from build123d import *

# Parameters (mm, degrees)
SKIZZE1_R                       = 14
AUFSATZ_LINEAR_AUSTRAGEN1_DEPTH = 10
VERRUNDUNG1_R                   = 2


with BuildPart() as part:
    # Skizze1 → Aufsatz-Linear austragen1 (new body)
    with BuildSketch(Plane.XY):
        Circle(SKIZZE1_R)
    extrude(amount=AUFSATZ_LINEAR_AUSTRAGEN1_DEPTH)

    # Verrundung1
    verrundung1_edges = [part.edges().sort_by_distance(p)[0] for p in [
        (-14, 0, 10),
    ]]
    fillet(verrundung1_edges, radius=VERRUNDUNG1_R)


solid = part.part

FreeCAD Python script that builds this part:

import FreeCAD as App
import Part
import Sketcher
Q = App.Units.Quantity


def edges_at(feature, points):
    """Names of the edges that pass closest to the given points."""
    edges = feature.Shape.Edges
    near = lambda p: min(range(len(edges)), key=lambda i: edges[i].distToShape(Part.Vertex(*p))[0])
    return sorted({f"Edge{near(p) + 1}" for p in points})

doc = App.newDocument("Part")
body = doc.addObject("PartDesign::Body", "Body")

sketch1 = body.newObject("Sketcher::SketchObject", "Sketch")
sketch1.AttachmentSupport = (doc.getObject("XY_Plane"), [""])
sketch1.MapMode = "FlatFace"
sketch1.addGeometry(Part.Circle(App.Vector(0, 0, 0), App.Vector(0, 0, 1), 14), False)
sketch1.addConstraint(Sketcher.Constraint("Coincident", 0, 3, -1, 1))
sketch1.addConstraint(Sketcher.Constraint("Diameter", 0, Q("28 mm")))
pad1 = body.newObject("PartDesign::Pad", "Pad")
pad1.Profile = sketch1
pad1.Length = 10
doc.recompute()

fillet = body.newObject("PartDesign::Fillet", "Fillet")
fillet.Base = (pad1, edges_at(pad1, [(-14, 0, 10)]))
fillet.Radius = 2

doc.recompute()
